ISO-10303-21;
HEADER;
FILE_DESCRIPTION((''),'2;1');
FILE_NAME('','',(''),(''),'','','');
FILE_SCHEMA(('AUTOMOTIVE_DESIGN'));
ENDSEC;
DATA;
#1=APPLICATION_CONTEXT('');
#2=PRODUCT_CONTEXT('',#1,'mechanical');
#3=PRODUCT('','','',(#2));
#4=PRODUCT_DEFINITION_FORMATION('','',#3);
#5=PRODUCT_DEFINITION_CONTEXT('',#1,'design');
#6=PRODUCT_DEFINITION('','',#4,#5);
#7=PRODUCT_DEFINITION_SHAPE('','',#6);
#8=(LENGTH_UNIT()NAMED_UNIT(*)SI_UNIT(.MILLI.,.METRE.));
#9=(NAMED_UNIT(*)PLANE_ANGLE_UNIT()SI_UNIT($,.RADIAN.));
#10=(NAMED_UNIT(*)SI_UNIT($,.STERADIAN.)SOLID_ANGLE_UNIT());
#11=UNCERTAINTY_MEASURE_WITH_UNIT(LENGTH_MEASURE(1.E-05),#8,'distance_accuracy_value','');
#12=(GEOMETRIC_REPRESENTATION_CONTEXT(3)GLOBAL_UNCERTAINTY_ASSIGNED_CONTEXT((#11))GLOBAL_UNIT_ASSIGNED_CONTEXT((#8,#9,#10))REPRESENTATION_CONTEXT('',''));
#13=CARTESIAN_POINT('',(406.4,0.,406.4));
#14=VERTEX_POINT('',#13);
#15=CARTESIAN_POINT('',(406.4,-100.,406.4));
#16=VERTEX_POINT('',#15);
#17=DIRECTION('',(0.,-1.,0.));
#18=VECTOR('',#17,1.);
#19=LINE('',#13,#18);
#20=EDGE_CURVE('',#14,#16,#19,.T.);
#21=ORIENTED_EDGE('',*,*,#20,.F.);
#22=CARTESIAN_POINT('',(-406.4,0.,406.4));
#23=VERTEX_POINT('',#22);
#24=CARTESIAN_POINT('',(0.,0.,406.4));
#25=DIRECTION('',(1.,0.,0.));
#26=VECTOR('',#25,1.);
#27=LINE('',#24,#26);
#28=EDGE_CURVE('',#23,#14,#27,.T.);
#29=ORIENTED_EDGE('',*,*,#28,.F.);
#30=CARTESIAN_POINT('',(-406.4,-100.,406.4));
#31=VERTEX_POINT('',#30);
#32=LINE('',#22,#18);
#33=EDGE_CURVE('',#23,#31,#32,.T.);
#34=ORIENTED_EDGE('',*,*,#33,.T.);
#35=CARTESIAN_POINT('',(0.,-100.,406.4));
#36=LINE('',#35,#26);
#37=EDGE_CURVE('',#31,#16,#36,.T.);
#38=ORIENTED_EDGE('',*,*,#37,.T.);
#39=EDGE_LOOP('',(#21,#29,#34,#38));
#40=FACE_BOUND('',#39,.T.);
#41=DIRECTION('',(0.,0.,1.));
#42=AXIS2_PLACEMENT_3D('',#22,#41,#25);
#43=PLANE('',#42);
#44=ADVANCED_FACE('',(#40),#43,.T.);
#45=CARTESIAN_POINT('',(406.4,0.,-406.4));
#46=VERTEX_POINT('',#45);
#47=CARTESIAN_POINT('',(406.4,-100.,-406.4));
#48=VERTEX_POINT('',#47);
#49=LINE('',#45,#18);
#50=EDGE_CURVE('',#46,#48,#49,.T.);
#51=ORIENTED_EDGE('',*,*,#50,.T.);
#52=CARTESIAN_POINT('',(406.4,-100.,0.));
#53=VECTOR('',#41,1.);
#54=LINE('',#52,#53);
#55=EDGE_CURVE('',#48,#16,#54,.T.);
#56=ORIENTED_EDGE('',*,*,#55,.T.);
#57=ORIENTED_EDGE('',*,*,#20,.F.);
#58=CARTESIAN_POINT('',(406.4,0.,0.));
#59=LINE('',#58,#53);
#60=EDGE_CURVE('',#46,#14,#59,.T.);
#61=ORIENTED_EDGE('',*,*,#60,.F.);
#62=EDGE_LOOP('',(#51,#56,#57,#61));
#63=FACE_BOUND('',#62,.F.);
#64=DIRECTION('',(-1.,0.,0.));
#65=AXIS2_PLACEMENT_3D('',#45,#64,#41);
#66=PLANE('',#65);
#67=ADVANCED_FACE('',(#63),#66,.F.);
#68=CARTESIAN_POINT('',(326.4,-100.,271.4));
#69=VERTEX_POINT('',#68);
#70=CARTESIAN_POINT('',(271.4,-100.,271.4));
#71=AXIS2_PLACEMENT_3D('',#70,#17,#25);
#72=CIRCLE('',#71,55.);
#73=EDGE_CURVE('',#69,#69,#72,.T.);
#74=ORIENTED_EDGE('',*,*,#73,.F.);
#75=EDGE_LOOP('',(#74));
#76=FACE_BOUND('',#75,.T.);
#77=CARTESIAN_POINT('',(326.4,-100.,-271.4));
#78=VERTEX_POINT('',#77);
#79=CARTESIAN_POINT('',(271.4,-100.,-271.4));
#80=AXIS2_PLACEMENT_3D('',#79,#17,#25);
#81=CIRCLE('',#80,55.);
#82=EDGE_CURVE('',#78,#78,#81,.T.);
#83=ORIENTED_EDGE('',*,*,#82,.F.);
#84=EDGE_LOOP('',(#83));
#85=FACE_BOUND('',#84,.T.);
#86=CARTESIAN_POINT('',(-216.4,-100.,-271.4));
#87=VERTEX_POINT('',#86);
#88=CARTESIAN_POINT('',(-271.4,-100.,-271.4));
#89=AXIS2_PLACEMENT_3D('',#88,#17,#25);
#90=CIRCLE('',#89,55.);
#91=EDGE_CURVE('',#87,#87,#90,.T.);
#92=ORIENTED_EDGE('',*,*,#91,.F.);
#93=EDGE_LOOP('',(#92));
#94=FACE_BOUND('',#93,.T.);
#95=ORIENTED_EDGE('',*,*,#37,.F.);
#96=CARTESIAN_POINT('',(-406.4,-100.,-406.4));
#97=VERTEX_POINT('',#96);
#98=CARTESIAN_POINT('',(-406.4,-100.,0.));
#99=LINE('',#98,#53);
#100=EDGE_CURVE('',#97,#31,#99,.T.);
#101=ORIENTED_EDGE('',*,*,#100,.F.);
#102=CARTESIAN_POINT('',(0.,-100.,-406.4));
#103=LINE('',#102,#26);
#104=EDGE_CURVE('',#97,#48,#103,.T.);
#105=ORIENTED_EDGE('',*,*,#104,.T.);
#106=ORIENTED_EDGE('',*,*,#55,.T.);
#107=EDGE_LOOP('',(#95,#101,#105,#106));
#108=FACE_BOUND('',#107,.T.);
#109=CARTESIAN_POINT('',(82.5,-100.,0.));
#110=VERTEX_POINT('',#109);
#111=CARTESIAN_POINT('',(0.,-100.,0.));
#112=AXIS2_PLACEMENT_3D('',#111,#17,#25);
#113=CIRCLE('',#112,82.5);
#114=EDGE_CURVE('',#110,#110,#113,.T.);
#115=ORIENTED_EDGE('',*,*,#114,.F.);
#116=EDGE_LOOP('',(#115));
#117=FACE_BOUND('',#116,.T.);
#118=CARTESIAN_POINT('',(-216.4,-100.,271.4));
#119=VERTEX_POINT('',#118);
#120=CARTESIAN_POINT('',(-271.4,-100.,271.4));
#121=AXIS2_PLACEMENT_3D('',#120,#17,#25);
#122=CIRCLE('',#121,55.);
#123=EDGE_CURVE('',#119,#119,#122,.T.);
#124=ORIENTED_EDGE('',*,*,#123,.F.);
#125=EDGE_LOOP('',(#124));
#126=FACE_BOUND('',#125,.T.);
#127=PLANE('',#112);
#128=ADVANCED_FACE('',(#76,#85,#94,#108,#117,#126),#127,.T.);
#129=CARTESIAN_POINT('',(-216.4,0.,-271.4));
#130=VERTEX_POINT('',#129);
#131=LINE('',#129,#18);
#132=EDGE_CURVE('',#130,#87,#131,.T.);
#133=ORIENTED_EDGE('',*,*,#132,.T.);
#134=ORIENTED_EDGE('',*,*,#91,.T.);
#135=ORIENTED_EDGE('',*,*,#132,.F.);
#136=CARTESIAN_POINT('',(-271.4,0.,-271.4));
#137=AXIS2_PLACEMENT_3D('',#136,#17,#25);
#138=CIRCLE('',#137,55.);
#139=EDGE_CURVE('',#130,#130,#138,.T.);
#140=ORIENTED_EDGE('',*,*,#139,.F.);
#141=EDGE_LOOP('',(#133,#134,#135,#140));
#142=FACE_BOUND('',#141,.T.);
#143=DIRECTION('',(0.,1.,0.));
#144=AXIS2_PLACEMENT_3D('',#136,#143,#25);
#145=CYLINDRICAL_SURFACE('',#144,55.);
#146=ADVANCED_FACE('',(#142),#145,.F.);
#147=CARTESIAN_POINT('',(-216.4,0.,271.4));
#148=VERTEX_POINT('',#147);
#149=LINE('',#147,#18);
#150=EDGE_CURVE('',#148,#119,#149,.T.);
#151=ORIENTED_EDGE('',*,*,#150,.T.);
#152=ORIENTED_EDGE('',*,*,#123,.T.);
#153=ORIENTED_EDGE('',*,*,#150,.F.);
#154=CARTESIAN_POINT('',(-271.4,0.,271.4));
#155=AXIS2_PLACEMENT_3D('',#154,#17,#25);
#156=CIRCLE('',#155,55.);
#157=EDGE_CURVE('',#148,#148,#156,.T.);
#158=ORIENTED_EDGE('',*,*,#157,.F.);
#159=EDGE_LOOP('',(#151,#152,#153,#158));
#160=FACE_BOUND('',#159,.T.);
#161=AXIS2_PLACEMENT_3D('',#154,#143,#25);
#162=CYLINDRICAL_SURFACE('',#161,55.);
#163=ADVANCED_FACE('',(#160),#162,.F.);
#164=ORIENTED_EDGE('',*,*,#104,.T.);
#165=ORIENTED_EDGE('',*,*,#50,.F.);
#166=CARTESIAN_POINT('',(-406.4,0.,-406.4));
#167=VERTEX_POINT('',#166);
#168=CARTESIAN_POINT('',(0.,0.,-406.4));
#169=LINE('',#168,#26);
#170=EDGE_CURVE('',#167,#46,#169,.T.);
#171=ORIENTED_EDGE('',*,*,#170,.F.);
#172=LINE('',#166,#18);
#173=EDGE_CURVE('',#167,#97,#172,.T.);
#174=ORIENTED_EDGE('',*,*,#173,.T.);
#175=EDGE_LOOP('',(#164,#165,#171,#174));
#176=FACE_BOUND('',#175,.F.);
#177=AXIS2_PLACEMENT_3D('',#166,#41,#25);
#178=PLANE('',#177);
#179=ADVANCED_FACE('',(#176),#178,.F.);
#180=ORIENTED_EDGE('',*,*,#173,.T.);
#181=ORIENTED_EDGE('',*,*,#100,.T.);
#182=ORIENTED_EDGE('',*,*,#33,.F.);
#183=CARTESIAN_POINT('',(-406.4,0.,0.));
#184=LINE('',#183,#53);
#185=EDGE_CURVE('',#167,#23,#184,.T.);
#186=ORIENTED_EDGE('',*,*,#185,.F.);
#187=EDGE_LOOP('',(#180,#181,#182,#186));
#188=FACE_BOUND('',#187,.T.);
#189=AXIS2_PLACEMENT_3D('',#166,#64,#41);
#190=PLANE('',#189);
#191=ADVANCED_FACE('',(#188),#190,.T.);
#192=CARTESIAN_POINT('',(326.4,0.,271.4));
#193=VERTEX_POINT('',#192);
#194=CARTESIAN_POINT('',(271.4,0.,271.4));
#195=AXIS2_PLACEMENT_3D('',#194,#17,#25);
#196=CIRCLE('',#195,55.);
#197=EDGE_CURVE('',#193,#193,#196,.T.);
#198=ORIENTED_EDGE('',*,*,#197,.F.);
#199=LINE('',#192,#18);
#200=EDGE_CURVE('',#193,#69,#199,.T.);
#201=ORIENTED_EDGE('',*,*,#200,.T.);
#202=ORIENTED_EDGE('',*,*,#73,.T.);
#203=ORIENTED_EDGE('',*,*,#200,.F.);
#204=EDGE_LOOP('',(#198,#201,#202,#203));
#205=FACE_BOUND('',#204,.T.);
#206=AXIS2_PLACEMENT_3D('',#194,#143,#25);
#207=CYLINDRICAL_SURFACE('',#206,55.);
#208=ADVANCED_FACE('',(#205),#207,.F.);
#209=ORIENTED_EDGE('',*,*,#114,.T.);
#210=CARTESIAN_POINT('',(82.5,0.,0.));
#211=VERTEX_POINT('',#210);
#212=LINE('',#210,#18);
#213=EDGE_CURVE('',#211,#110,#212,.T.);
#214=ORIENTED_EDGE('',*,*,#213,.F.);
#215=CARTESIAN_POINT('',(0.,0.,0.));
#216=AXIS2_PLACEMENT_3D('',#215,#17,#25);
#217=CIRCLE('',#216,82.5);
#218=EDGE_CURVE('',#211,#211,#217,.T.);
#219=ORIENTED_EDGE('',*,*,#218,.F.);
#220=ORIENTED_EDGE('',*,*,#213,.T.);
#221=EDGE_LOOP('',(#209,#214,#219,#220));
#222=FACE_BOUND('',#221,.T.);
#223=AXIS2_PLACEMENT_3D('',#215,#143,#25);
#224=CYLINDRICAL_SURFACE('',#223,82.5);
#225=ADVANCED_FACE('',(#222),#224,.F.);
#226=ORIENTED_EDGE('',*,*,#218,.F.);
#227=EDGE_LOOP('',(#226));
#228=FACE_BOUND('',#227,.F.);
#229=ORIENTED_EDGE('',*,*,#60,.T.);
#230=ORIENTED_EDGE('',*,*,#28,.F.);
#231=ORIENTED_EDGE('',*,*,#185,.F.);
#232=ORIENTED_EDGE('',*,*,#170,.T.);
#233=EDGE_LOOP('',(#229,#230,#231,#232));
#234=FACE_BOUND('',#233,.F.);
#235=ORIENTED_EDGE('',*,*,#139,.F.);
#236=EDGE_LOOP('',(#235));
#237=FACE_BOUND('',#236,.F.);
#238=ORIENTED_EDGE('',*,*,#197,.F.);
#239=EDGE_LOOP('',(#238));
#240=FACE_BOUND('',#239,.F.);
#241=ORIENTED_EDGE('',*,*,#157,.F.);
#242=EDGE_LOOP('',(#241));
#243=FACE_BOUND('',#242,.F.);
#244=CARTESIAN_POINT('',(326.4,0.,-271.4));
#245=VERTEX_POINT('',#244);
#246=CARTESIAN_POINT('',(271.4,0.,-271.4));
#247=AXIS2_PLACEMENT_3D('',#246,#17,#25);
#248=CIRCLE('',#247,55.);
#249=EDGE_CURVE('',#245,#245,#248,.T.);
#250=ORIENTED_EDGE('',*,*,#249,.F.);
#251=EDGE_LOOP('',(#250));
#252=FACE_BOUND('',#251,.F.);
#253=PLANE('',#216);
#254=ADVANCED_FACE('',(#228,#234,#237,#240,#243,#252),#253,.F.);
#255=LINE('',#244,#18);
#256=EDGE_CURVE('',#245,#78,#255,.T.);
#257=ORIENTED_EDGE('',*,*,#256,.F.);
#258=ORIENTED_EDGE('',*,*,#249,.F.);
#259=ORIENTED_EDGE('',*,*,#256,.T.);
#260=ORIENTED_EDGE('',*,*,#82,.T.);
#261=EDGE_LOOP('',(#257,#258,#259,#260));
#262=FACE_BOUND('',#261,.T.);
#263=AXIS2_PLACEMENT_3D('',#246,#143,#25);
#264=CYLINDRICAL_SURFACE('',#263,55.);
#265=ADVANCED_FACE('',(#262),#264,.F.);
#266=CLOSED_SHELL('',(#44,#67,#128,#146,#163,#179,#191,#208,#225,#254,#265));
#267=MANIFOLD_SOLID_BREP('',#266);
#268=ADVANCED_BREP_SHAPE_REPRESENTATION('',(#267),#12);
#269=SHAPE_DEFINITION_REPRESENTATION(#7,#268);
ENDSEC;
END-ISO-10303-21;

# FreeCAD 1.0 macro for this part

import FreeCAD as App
import Part
import Sketcher
Q = App.Units.Quantity


def add_polygon(sketch, points):
    """Adds a closed chain of lines whose ends are joined by coincident constraints."""
    first, n = sketch.GeometryCount, len(points)
    for a, b in zip(points, points[1:] + points[:1]):
        sketch.addGeometry(Part.LineSegment(App.Vector(*a, 0), App.Vector(*b, 0)), False)
    for i in range(n):
        sketch.addConstraint(Sketcher.Constraint("Coincident", first + i, 2, first + (i + 1) % n, 1))

doc = App.newDocument("Part")
params = doc.addObject("Spreadsheet::Sheet", "Params")
for row, (alias, value) in enumerate([
    ("sketch1_diameter", "110 mm"),
    ("sketch1_diameter2", "165 mm"),
    ("sketch1_width", "812.8 mm"),
    ("pad1_length", "100 mm"),
], start=1):
    params.set(f"A{row}", alias)
    params.set(f"B{row}", "=" + value)
    params.setAlias(f"B{row}", alias)

body = doc.addObject("PartDesign::Body", "Body")

sketch1 = body.newObject("Sketcher::SketchObject", "Sketch")
sketch1.AttachmentSupport = (doc.getObject("XZ_Plane"), [""])
sketch1.MapMode = "FlatFace"
add_polygon(sketch1, [(-406.4, 406.4), (-406.4, -406.4), (406.4, -406.4), (406.4, 406.4)])
sketch1.addGeometry(Part.Circle(App.Vector(-271.4, -271.4, 0), App.Vector(0, 0, 1), 55), False)
sketch1.addGeometry(Part.Circle(App.Vector(271.4, -271.4, 0), App.Vector(0, 0, 1), 55), False)
sketch1.addGeometry(Part.Circle(App.Vector(-271.4, 271.4, 0), App.Vector(0, 0, 1), 55), False)
sketch1.addGeometry(Part.Circle(App.Vector(0, 0, 0), App.Vector(0, 0, 1), 82.5), False)
sketch1.addGeometry(Part.Circle(App.Vector(271.4, 271.4, 0), App.Vector(0, 0, 1), 55), False)
sketch1.addConstraint([
    Sketcher.Constraint("Vertical", 0),
    Sketcher.Constraint("Horizontal", 1),
    Sketcher.Constraint("Vertical", 2),
    Sketcher.Constraint("Horizontal", 3),
    Sketcher.Constraint("Coincident", 7, 3, -1, 1),
    Sketcher.Constraint("Equal", 4, 5),
    Sketcher.Constraint("Equal", 5, 6),
    Sketcher.Constraint("Equal", 6, 8),
    Sketcher.Constraint("Symmetric", 5, 3, 6, 3, -1, 1),
    Sketcher.Constraint("Symmetric", 4, 3, 8, 3, -1, 1),
    Sketcher.Constraint("Symmetric", 0, 2, 2, 2, -1, 1),
    Sketcher.Constraint("Symmetric", 4, 3, 5, 3, -2),
    Sketcher.Constraint("Equal", 3, 0),
    Sketcher.Constraint("Diameter", 4, Q("110 mm")),
    Sketcher.Constraint("Diameter", 7, Q("165 mm")),
    Sketcher.Constraint("DistanceX", 1, 1, 1, 2, Q("812.8 mm")),
    Sketcher.Constraint("DistanceX", 0, 2, 4, 3, Q("135 mm")),
    Sketcher.Constraint("DistanceY", 0, 2, 4, 3, Q("135 mm")),
])
sketch1.setExpression("Constraints[17]", "Params.sketch1_diameter")
sketch1.setExpression("Constraints[18]", "Params.sketch1_diameter2")
sketch1.setExpression("Constraints[19]", "Params.sketch1_width")
pad1 = body.newObject("PartDesign::Pad", "Pad")
pad1.Profile = sketch1
pad1.setExpression("Length", "Params.pad1_length")

doc.recompute()
